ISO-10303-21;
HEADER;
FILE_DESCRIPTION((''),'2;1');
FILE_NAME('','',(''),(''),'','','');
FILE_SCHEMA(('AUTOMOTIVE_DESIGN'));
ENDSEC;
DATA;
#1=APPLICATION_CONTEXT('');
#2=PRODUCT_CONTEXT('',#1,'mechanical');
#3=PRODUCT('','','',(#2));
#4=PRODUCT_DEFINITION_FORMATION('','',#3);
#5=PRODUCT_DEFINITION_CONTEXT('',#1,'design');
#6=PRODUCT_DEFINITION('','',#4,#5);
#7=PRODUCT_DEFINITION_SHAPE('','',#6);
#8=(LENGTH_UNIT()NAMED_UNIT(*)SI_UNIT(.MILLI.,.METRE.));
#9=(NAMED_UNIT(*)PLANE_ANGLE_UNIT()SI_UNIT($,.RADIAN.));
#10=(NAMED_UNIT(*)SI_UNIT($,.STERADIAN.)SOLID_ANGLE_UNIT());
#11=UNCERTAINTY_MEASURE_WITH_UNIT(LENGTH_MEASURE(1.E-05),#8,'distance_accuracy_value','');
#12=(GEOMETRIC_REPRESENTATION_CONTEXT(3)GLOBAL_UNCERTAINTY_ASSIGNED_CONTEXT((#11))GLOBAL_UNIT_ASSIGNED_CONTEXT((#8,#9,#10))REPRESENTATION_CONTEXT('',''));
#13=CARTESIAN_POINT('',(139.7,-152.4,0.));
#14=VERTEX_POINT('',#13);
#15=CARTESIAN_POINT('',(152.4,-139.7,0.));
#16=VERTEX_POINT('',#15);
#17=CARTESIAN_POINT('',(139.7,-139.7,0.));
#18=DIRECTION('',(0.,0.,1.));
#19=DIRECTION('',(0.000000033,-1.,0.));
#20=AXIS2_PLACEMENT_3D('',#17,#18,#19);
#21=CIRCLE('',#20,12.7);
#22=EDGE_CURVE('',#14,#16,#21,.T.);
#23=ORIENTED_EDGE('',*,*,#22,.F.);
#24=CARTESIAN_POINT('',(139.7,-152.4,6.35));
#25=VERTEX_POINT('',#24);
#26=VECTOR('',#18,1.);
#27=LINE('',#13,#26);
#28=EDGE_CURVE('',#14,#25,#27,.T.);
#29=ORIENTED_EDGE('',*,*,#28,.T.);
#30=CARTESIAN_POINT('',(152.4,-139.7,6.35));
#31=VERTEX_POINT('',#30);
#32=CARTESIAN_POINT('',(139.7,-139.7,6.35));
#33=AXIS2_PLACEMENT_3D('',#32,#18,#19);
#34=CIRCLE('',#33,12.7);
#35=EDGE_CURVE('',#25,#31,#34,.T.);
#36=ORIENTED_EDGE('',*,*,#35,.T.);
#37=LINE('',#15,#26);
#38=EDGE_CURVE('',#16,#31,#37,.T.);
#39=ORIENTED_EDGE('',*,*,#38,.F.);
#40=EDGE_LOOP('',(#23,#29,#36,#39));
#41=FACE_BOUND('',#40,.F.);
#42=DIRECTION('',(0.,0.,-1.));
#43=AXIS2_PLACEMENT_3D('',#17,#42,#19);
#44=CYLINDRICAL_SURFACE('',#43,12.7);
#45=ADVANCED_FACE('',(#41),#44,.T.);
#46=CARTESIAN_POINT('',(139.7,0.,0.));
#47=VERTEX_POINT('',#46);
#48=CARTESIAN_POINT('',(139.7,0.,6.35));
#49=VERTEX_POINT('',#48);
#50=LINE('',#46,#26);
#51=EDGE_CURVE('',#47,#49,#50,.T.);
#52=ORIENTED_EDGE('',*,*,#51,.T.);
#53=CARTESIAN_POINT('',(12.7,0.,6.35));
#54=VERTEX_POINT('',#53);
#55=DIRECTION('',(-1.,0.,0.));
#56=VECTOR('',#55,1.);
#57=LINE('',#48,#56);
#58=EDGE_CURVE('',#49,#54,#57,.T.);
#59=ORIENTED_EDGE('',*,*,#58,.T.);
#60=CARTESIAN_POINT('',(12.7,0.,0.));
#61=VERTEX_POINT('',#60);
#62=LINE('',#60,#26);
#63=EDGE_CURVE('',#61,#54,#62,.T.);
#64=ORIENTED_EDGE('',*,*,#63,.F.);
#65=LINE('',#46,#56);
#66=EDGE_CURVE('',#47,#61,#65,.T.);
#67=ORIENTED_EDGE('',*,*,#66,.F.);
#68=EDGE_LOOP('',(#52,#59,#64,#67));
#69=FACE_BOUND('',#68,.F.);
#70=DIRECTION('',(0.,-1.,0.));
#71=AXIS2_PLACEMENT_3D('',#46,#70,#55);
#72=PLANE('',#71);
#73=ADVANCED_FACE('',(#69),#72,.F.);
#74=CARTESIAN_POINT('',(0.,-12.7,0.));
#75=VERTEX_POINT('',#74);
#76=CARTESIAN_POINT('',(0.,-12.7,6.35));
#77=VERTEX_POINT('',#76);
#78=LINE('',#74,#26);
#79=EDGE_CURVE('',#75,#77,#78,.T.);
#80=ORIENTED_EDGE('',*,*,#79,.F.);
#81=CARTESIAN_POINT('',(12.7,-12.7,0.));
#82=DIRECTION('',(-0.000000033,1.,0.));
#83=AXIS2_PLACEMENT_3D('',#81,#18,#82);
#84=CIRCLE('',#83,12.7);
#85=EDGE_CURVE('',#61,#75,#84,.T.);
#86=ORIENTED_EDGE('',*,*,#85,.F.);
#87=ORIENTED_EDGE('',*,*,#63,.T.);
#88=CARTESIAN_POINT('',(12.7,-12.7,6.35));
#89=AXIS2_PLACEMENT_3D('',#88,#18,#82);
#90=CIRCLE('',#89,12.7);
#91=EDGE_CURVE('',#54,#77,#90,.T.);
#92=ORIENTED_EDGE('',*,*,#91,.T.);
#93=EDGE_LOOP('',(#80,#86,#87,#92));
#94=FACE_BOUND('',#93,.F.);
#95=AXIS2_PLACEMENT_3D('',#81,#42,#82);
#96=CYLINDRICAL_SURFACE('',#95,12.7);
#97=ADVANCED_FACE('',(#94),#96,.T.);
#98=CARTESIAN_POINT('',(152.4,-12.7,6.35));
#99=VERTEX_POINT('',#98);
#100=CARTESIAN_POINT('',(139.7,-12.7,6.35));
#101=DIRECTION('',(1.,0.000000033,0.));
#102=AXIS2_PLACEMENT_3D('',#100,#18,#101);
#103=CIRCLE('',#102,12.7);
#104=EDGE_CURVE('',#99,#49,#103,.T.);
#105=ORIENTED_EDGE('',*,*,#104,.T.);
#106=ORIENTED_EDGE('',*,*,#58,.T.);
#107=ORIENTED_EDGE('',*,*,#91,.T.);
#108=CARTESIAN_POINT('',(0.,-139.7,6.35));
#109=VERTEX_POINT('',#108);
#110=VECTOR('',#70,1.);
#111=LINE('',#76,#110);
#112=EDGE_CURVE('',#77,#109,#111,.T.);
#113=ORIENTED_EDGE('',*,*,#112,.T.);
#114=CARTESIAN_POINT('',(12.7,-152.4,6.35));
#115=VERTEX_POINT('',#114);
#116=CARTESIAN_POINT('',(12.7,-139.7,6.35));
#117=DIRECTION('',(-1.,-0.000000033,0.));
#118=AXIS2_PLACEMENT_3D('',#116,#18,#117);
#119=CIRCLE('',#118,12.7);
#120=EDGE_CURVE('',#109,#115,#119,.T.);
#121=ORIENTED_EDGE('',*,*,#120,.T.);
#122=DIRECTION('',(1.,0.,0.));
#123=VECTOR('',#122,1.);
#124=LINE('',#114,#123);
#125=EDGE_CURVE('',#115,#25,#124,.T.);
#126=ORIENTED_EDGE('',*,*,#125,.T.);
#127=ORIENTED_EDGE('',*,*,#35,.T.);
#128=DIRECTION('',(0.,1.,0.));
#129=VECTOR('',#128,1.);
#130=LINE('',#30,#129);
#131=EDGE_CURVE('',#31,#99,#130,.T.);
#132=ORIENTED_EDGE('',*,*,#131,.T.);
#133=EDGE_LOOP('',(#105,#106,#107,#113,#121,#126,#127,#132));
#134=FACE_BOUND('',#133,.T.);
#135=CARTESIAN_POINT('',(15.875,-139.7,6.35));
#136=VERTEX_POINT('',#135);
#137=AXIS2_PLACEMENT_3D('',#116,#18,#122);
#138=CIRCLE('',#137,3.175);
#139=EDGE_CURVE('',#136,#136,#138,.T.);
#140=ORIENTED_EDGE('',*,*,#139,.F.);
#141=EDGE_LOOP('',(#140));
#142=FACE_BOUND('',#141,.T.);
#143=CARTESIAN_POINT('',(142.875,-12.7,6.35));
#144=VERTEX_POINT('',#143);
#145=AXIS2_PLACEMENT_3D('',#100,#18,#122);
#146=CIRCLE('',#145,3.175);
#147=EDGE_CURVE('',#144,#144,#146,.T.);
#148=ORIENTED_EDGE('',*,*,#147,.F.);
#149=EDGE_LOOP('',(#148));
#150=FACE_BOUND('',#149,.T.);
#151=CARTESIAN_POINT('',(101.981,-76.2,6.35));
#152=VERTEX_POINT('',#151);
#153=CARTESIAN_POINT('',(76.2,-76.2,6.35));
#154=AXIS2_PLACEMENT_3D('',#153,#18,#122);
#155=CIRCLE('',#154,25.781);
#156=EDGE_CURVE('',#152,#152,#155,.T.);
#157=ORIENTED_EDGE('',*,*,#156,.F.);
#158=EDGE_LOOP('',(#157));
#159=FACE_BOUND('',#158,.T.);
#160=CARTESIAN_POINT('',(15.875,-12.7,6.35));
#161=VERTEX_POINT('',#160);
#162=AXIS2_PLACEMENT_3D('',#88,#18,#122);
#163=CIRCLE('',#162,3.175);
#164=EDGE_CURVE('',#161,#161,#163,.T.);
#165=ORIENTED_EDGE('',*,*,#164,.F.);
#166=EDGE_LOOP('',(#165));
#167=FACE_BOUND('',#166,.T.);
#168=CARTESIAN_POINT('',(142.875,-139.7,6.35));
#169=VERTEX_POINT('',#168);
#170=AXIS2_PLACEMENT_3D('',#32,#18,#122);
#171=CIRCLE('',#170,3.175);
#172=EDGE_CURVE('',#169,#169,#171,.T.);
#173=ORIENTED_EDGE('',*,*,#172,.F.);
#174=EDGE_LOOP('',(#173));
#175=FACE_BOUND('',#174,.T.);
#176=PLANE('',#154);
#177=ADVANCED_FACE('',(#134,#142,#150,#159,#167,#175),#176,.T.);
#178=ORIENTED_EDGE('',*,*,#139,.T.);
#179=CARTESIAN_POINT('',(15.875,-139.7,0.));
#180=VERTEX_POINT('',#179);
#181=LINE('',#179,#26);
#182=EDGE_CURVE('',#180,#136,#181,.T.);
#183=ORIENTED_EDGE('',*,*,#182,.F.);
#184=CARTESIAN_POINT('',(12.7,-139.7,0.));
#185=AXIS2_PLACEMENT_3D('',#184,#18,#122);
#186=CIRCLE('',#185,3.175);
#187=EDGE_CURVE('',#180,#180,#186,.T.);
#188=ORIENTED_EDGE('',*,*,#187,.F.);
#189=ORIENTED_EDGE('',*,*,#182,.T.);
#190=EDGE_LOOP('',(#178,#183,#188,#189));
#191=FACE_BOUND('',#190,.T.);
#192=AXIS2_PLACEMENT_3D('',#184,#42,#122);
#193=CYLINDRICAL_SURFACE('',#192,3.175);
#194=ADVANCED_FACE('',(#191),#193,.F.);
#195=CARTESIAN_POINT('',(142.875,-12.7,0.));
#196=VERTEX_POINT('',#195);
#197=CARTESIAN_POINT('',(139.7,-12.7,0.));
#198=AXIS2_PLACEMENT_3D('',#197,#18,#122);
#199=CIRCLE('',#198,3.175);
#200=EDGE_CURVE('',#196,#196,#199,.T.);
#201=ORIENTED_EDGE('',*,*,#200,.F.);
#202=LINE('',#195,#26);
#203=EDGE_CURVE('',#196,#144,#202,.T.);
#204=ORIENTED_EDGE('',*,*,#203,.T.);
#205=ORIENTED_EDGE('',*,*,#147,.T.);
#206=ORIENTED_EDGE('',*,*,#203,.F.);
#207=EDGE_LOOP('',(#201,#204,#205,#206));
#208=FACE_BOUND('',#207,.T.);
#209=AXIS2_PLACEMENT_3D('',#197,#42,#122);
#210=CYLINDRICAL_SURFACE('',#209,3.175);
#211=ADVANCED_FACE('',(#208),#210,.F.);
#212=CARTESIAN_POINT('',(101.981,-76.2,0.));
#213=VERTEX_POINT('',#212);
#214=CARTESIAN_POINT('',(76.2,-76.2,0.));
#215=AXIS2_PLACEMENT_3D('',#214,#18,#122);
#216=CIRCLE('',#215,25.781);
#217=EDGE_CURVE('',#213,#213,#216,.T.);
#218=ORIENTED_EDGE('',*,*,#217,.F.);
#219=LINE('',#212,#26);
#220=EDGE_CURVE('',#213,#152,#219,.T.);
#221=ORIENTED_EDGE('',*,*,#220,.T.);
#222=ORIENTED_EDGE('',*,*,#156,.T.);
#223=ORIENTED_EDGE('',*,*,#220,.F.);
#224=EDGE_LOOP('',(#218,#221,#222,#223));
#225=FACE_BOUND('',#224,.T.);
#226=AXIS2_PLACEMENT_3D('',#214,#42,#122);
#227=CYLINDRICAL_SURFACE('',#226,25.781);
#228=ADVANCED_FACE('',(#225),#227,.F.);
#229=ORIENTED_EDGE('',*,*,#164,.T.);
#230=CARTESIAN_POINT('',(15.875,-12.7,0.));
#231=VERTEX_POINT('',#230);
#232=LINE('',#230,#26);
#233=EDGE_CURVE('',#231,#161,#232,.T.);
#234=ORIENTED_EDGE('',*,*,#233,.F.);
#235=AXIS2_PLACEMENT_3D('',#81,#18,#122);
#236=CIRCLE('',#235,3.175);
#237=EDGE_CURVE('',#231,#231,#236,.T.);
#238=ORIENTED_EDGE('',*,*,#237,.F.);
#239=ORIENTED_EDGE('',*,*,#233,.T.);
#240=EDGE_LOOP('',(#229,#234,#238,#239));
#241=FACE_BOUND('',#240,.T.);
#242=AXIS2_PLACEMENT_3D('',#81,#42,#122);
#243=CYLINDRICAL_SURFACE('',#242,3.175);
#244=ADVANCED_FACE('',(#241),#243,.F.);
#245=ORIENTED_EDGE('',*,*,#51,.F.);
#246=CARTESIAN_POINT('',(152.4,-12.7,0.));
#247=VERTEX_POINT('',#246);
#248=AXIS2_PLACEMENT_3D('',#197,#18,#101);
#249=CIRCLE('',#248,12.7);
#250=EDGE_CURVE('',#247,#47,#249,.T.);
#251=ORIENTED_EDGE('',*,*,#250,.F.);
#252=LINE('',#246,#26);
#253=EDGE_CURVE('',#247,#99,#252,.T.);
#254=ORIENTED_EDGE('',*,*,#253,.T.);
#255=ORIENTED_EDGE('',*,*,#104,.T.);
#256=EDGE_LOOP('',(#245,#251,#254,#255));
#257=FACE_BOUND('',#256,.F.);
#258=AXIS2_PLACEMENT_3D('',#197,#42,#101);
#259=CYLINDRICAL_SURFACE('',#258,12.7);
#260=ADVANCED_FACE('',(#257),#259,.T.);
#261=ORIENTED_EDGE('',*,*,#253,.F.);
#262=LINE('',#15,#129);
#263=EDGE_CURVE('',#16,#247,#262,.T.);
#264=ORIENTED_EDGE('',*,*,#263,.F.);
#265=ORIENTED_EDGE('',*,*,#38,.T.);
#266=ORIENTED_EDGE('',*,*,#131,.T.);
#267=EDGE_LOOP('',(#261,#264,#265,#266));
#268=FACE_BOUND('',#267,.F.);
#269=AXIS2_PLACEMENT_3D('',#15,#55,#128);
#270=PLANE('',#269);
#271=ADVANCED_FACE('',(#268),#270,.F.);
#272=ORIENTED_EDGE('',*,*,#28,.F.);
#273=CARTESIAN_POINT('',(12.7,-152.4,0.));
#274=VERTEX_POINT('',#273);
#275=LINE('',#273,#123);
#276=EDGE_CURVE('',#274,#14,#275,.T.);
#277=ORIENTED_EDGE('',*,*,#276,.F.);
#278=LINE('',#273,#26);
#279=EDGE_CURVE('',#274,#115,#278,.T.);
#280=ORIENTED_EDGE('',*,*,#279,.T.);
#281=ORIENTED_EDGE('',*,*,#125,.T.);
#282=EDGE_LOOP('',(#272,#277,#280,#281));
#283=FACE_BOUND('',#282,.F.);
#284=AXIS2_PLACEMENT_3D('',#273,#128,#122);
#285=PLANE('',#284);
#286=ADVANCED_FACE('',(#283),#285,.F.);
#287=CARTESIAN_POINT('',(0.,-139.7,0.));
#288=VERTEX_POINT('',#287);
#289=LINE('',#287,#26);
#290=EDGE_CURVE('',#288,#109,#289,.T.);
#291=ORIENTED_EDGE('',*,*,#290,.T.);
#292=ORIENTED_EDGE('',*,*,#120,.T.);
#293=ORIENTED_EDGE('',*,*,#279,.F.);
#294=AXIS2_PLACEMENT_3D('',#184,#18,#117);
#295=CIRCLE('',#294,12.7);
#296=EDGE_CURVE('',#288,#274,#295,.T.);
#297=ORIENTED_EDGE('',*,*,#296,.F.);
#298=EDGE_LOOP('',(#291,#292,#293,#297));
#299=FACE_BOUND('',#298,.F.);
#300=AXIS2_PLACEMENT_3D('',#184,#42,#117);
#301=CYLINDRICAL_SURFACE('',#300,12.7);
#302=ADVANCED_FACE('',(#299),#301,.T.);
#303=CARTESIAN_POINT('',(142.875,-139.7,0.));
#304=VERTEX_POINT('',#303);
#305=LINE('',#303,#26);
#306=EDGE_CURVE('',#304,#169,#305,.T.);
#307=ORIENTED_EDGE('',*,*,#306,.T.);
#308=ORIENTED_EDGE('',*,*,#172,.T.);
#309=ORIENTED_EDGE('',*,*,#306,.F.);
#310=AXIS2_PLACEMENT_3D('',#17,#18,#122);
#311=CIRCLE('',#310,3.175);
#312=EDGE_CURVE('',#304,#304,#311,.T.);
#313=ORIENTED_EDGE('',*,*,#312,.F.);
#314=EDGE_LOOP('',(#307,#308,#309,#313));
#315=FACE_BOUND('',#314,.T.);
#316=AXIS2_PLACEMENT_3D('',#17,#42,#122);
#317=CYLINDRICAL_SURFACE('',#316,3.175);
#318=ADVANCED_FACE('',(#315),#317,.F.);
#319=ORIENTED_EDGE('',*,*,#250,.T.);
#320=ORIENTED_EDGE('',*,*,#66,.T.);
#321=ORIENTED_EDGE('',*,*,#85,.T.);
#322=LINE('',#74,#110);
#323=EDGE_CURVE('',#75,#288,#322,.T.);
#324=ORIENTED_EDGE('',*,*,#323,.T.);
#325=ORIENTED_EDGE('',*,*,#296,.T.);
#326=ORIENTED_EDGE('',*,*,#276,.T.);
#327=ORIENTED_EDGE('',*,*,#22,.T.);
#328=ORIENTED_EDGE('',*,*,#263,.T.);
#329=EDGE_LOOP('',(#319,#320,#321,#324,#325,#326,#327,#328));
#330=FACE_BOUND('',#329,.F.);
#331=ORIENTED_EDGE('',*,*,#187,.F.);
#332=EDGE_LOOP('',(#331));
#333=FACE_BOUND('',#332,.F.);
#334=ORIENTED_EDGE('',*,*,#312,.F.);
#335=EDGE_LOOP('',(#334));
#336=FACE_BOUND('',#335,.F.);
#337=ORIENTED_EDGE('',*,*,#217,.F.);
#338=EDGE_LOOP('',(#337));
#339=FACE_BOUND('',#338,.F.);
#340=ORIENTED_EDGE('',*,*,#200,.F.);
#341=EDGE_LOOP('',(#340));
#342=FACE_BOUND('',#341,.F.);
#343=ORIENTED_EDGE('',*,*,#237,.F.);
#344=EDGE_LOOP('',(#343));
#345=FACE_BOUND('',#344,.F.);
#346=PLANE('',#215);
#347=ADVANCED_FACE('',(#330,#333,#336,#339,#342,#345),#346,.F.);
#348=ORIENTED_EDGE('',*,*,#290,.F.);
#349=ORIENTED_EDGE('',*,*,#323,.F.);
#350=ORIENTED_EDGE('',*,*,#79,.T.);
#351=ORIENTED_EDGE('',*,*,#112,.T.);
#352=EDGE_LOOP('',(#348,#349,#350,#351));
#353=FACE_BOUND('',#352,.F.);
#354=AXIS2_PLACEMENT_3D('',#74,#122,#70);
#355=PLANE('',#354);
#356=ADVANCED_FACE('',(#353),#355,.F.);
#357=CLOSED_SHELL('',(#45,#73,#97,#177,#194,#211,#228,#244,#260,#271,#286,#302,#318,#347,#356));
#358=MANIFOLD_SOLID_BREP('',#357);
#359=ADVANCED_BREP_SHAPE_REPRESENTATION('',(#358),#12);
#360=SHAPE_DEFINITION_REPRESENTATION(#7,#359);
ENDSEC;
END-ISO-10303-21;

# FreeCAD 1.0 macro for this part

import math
import FreeCAD as App
import Part
import Sketcher
Q = App.Units.Quantity

doc = App.newDocument("Part")
body = doc.addObject("PartDesign::Body", "Body")

# Sketch on XY plane
sketch1 = body.newObject("Sketcher::SketchObject", "Sketch")
sketch1.AttachmentSupport = (doc.getObject("XY_Plane"), [""])
sketch1.MapMode = "FlatFace"
sketch1.addGeometry([
    Part.LineSegment(App.Vector(139.7, 0, 0), App.Vector(12.7, 0, 0)),  # 0
    Part.ArcOfCircle(Part.Circle(App.Vector(12.7, -12.7, 0), App.Vector(0, 0, 1), 12.7), math.radians(90.000002), math.radians(179.999998)),  # 1
    Part.LineSegment(App.Vector(0, -12.7, 0), App.Vector(0, -139.7, 0)),  # 2
    Part.ArcOfCircle(Part.Circle(App.Vector(12.7, -139.7, 0), App.Vector(0, 0, 1), 12.7), math.radians(-179.999998), math.radians(-90.000002)),  # 3
    Part.LineSegment(App.Vector(12.7, -152.4, 0), App.Vector(139.7, -152.4, 0)),  # 4
    Part.ArcOfCircle(Part.Circle(App.Vector(139.7, -139.7, 0), App.Vector(0, 0, 1), 12.7), math.radians(-89.999998), math.radians(-0.000002)),  # 5
    Part.LineSegment(App.Vector(152.4, -139.7, 0), App.Vector(152.4, -12.7, 0)),  # 6
    Part.ArcOfCircle(Part.Circle(App.Vector(139.7, -12.7, 0), App.Vector(0, 0, 1), 12.7), math.radians(0.000002), math.radians(89.999998)),  # 7
    Part.Circle(App.Vector(12.7, -139.7, 0), App.Vector(0, 0, 1), 3.175),  # 8
    Part.Circle(App.Vector(139.7, -139.7, 0), App.Vector(0, 0, 1), 3.175),  # 9
    Part.Circle(App.Vector(76.2, -76.2, 0), App.Vector(0, 0, 1), 25.781),  # 10
    Part.Circle(App.Vector(12.7, -12.7, 0), App.Vector(0, 0, 1), 3.175),  # 11
    Part.Circle(App.Vector(139.7, -12.7, 0), App.Vector(0, 0, 1), 3.175),  # 12
], False)
sketch1.addConstraint([
    Sketcher.Constraint("Tangent", 0, 2, 1, 1),
    Sketcher.Constraint("Tangent", 1, 2, 2, 1),
    Sketcher.Constraint("Tangent", 2, 2, 3, 1),
    Sketcher.Constraint("Tangent", 3, 2, 4, 1),
    Sketcher.Constraint("Tangent", 4, 2, 5, 1),
    Sketcher.Constraint("Tangent", 5, 2, 6, 1),
    Sketcher.Constraint("Tangent", 6, 2, 7, 1),
    Sketcher.Constraint("Tangent", 7, 2, 0, 1),
    Sketcher.Constraint("Horizontal", 0),
    Sketcher.Constraint("Vertical", 2),
    Sketcher.Constraint("Horizontal", 4),
    Sketcher.Constraint("Vertical", 6),
    Sketcher.Constraint("Coincident", 8, 3, 3, 3),
    Sketcher.Constraint("Coincident", 9, 3, 5, 3),
    Sketcher.Constraint("Coincident", 11, 3, 1, 3),
    Sketcher.Constraint("Coincident", 12, 3, 7, 3),
    Sketcher.Constraint("Equal", 1, 3),
    Sketcher.Constraint("Equal", 3, 5),
    Sketcher.Constraint("Equal", 5, 7),
    Sketcher.Constraint("Equal", 8, 9),
    Sketcher.Constraint("Equal", 9, 11),
    Sketcher.Constraint("Equal", 11, 12),
    Sketcher.Constraint("PointOnObject", 0, 2, -1),
    Sketcher.Constraint("PointOnObject", 1, 2, -2),
    Sketcher.Constraint("Equal", 4, 2),
    Sketcher.Constraint("Radius", 1, Q("0.5 in")),
    Sketcher.Constraint("Diameter", 8, Q("0.25 in")),
    Sketcher.Constraint("Diameter", 10, Q("2.03 in")),
    Sketcher.Constraint("DistanceX", 0, 2, 0, 1, Q("5 in")),
    Sketcher.Constraint("DistanceX", -1, 1, 10, 3, Q("3 in")),
    Sketcher.Constraint("DistanceY", 10, 3, -1, 1, Q("3 in")),
])
pad1 = body.newObject("PartDesign::Pad", "Pad")
pad1.Profile = sketch1
pad1.Length = Q("0.25 in")

doc.recompute()
